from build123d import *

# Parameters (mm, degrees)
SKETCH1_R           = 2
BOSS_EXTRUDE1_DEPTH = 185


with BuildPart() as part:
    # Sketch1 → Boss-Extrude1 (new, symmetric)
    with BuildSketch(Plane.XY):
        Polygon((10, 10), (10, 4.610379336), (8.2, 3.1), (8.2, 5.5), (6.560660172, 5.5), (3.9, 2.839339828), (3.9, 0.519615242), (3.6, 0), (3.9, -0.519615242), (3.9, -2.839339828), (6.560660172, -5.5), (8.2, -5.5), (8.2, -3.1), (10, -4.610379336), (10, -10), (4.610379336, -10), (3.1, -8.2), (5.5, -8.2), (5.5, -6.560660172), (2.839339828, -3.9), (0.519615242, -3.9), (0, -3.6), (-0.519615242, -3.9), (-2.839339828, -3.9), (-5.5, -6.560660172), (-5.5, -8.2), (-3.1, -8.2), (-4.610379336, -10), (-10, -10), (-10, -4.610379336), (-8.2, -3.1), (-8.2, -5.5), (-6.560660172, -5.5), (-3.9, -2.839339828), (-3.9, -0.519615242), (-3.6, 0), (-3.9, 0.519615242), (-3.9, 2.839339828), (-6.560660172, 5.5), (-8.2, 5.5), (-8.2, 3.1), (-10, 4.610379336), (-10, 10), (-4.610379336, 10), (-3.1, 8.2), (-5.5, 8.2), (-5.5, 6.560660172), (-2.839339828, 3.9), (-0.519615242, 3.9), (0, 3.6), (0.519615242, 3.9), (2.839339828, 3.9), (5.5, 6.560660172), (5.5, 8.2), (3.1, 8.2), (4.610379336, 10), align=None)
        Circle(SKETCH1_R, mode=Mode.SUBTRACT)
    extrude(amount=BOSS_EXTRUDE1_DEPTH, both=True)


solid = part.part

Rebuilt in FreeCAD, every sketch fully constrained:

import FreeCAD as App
import Part
import Sketcher
Q = App.Units.Quantity

doc = App.newDocument("Part")
body = doc.addObject("PartDesign::Body", "Body")

sketch1 = body.newObject("Sketcher::SketchObject", "Sketch")
sketch1.AttachmentSupport = (doc.getObject("XY_Plane"), [""])
sketch1.MapMode = "FlatFace"
sketch1.addGeometry(Part.LineSegment(App.Vector(10, 4.6, 0), App.Vector(10, 10, 0)), False)
sketch1.addGeometry(Part.LineSegment(App.Vector(10, 10, 0), App.Vector(4.6, 10, 0)), False)
sketch1.addGeometry(Part.LineSegment(App.Vector(4.6, 10, 0), App.Vector(3.1, 8.2, 0)), False)
sketch1.addGeometry(Part.LineSegment(App.Vector(3.1, 8.2, 0), App.Vector(5.5, 8.2, 0)), False)
sketch1.addGeometry(Part.LineSegment(App.Vector(5.5, 8.2, 0), App.Vector(5.5, 6.6, 0)), False)
sketch1.addGeometry(Part.LineSegment(App.Vector(5.5, 6.6, 0), App.Vector(2.8, 3.9, 0)), False)
sketch1.addGeometry(Part.LineSegment(App.Vector(2.8, 3.9, 0), App.Vector(0.5, 3.9, 0)), False)
sketch1.addGeometry(Part.LineSegment(App.Vector(0.5, 3.9, 0), App.Vector(0, 3.6, 0)), False)
sketch1.addGeometry(Part.LineSegment(App.Vector(0, 3.6, 0), App.Vector(-0.5, 3.9, 0)), False)
sketch1.addGeometry(Part.LineSegment(App.Vector(-0.5, 3.9, 0), App.Vector(-2.8, 3.9, 0)), False)
sketch1.addGeometry(Part.LineSegment(App.Vector(-2.8, 3.9, 0), App.Vector(-5.5, 6.6, 0)), False)
sketch1.addGeometry(Part.LineSegment(App.Vector(-5.5, 6.6, 0), App.Vector(-5.5, 8.2, 0)), False)
sketch1.addGeometry(Part.LineSegment(App.Vector(-5.5, 8.2, 0), App.Vector(-3.1, 8.2, 0)), False)
sketch1.addGeometry(Part.LineSegment(App.Vector(-3.1, 8.2, 0), App.Vector(-4.6, 10, 0)), False)
sketch1.addGeometry(Part.LineSegment(App.Vector(-4.6, 10, 0), App.Vector(-10, 10, 0)), False)
sketch1.addGeometry(Part.LineSegment(App.Vector(-10, 10, 0), App.Vector(-10, 4.6, 0)), False)
sketch1.addGeometry(Part.LineSegment(App.Vector(-10, 4.6, 0), App.Vector(-8.2, 3.1, 0)), False)
sketch1.addGeometry(Part.LineSegment(App.Vector(-8.2, 3.1, 0), App.Vector(-8.2, 5.5, 0)), False)
sketch1.addGeometry(Part.LineSegment(App.Vector(-8.2, 5.5, 0), App.Vector(-6.6, 5.5, 0)), False)
sketch1.addGeometry(Part.LineSegment(App.Vector(-6.6, 5.5, 0), App.Vector(-3.9, 2.8, 0)), False)
sketch1.addGeometry(Part.LineSegment(App.Vector(-3.9, 2.8, 0), App.Vector(-3.9, 0.5, 0)), False)
sketch1.addGeometry(Part.LineSegment(App.Vector(-3.9, 0.5, 0), App.Vector(-3.6, 0, 0)), False)
sketch1.addGeometry(Part.LineSegment(App.Vector(-3.6, 0, 0), App.Vector(-3.9, -0.5, 0)), False)
sketch1.addGeometry(Part.LineSegment(App.Vector(-3.9, -0.5, 0), App.Vector(-3.9, -2.8, 0)), False)
sketch1.addGeometry(Part.LineSegment(App.Vector(-3.9, -2.8, 0), App.Vector(-6.6, -5.5, 0)), False)
sketch1.addGeometry(Part.LineSegment(App.Vector(-6.6, -5.5, 0), App.Vector(-8.2, -5.5, 0)), False)
sketch1.addGeometry(Part.LineSegment(App.Vector(-8.2, -5.5, 0), App.Vector(-8.2, -3.1, 0)), False)
sketch1.addGeometry(Part.LineSegment(App.Vector(-8.2, -3.1, 0), App.Vector(-10, -4.6, 0)), False)
sketch1.addGeometry(Part.LineSegment(App.Vector(-10, -4.6, 0), App.Vector(-10, -10, 0)), False)
sketch1.addGeometry(Part.LineSegment(App.Vector(-10, -10, 0), App.Vector(-4.6, -10, 0)), False)
sketch1.addGeometry(Part.LineSegment(App.Vector(-4.6, -10, 0), App.Vector(-3.1, -8.2, 0)), False)
sketch1.addGeometry(Part.LineSegment(App.Vector(-3.1, -8.2, 0), App.Vector(-5.5, -8.2, 0)), False)
sketch1.addGeometry(Part.LineSegment(App.Vector(-5.5, -8.2, 0), App.Vector(-5.5, -6.6, 0)), False)
sketch1.addGeometry(Part.LineSegment(App.Vector(-5.5, -6.6, 0), App.Vector(-2.8, -3.9, 0)), False)
sketch1.addGeometry(Part.LineSegment(App.Vector(-2.8, -3.9, 0), App.Vector(-0.5, -3.9, 0)), False)
sketch1.addGeometry(Part.LineSegment(App.Vector(-0.5, -3.9, 0), App.Vector(0, -3.6, 0)), False)
sketch1.addGeometry(Part.LineSegment(App.Vector(0, -3.6, 0), App.Vector(0.5, -3.9, 0)), False)
sketch1.addGeometry(Part.LineSegment(App.Vector(0.5, -3.9, 0), App.Vector(2.8, -3.9, 0)), False)
sketch1.addGeometry(Part.LineSegment(App.Vector(2.8, -3.9, 0), App.Vector(5.5, -6.6, 0)), False)
sketch1.addGeometry(Part.LineSegment(App.Vector(5.5, -6.6, 0), App.Vector(5.5, -8.2, 0)), False)
sketch1.addGeometry(Part.LineSegment(App.Vector(5.5, -8.2, 0), App.Vector(3.1, -8.2, 0)), False)
sketch1.addGeometry(Part.LineSegment(App.Vector(3.1, -8.2, 0), App.Vector(4.6, -10, 0)), False)
sketch1.addGeometry(Part.LineSegment(App.Vector(4.6, -10, 0), App.Vector(10, -10, 0)), False)
sketch1.addGeometry(Part.LineSegment(App.Vector(10, -10, 0), App.Vector(10, -4.6, 0)), False)
sketch1.addGeometry(Part.LineSegment(App.Vector(10, -4.6, 0), App.Vector(8.2, -3.1, 0)), False)
sketch1.addGeometry(Part.LineSegment(App.Vector(8.2, -3.1, 0), App.Vector(8.2, -5.5, 0)), False)
sketch1.addGeometry(Part.LineSegment(App.Vector(8.2, -5.5, 0), App.Vector(6.6, -5.5, 0)), False)
sketch1.addGeometry(Part.LineSegment(App.Vector(6.6, -5.5, 0), App.Vector(3.9, -2.8, 0)), False)
sketch1.addGeometry(Part.LineSegment(App.Vector(3.9, -2.8, 0), App.Vector(3.9, -0.5, 0)), False)
sketch1.addGeometry(Part.LineSegment(App.Vector(3.9, -0.5, 0), App.Vector(3.6, 0, 0)), False)
sketch1.addGeometry(Part.LineSegment(App.Vector(3.6, 0, 0), App.Vector(3.9, 0.5, 0)), False)
sketch1.addGeometry(Part.LineSegment(App.Vector(3.9, 0.5, 0), App.Vector(3.9, 2.8, 0)), False)
sketch1.addGeometry(Part.LineSegment(App.Vector(3.9, 2.8, 0), App.Vector(6.6, 5.5, 0)), False)
sketch1.addGeometry(Part.LineSegment(App.Vector(6.6, 5.5, 0), App.Vector(8.2, 5.5, 0)), False)
sketch1.addGeometry(Part.LineSegment(App.Vector(8.2, 5.5, 0), App.Vector(8.2, 3.1, 0)), False)
sketch1.addGeometry(Part.LineSegment(App.Vector(8.2, 3.1, 0), App.Vector(10, 4.6, 0)), False)
sketch1.addGeometry(Part.Circle(App.Vector(0, 0, 0), App.Vector(0, 0, 1), 2), False)
sketch1.addConstraint(Sketcher.Constraint("Coincident", 0, 2, 1, 1))
sketch1.addConstraint(Sketcher.Constraint("Coincident", 1, 2, 2, 1))
sketch1.addConstraint(Sketcher.Constraint("Coincident", 2, 2, 3, 1))
sketch1.addConstraint(Sketcher.Constraint("Coincident", 3, 2, 4, 1))
sketch1.addConstraint(Sketcher.Constraint("Coincident", 4, 2, 5, 1))
sketch1.addConstraint(Sketcher.Constraint("Coincident", 5, 2, 6, 1))
sketch1.addConstraint(Sketcher.Constraint("Coincident", 6, 2, 7, 1))
sketch1.addConstraint(Sketcher.Constraint("Coincident", 7, 2, 8, 1))
sketch1.addConstraint(Sketcher.Constraint("Coincident", 8, 2, 9, 1))
sketch1.addConstraint(Sketcher.Constraint("Coincident", 9, 2, 10, 1))
sketch1.addConstraint(Sketcher.Constraint("Coincident", 10, 2, 11, 1))
sketch1.addConstraint(Sketcher.Constraint("Coincident", 11, 2, 12, 1))
sketch1.addConstraint(Sketcher.Constraint("Coincident", 12, 2, 13, 1))
sketch1.addConstraint(Sketcher.Constraint("Coincident", 13, 2, 14, 1))
sketch1.addConstraint(Sketcher.Constraint("Coincident", 14, 2, 15, 1))
sketch1.addConstraint(Sketcher.Constraint("Coincident", 15, 2, 16, 1))
sketch1.addConstraint(Sketcher.Constraint("Coincident", 16, 2, 17, 1))
sketch1.addConstraint(Sketcher.Constraint("Coincident", 17, 2, 18, 1))
sketch1.addConstraint(Sketcher.Constraint("Coincident", 18, 2, 19, 1))
sketch1.addConstraint(Sketcher.Constraint("Coincident", 19, 2, 20, 1))
sketch1.addConstraint(Sketcher.Constraint("Coincident", 20, 2, 21, 1))
sketch1.addConstraint(Sketcher.Constraint("Coincident", 21, 2, 22, 1))
sketch1.addConstraint(Sketcher.Constraint("Coincident", 22, 2, 23, 1))
sketch1.addConstraint(Sketcher.Constraint("Coincident", 23, 2, 24, 1))
sketch1.addConstraint(Sketcher.Constraint("Coincident", 24, 2, 25, 1))
sketch1.addConstraint(Sketcher.Constraint("Coincident", 25, 2, 26, 1))
sketch1.addConstraint(Sketcher.Constraint("Coincident", 26, 2, 27, 1))
sketch1.addConstraint(Sketcher.Constraint("Coincident", 27, 2, 28, 1))
sketch1.addConstraint(Sketcher.Constraint("Coincident", 28, 2, 29, 1))
sketch1.addConstraint(Sketcher.Constraint("Coincident", 29, 2, 30, 1))
sketch1.addConstraint(Sketcher.Constraint("Coincident", 30, 2, 31, 1))
sketch1.addConstraint(Sketcher.Constraint("Coincident", 31, 2, 32, 1))
sketch1.addConstraint(Sketcher.Constraint("Coincident", 32, 2, 33, 1))
sketch1.addConstraint(Sketcher.Constraint("Coincident", 33, 2, 34, 1))
sketch1.addConstraint(Sketcher.Constraint("Coincident", 34, 2, 35, 1))
sketch1.addConstraint(Sketcher.Constraint("Coincident", 35, 2, 36, 1))
sketch1.addConstraint(Sketcher.Constraint("Coincident", 36, 2, 37, 1))
sketch1.addConstraint(Sketcher.Constraint("Coincident", 37, 2, 38, 1))
sketch1.addConstraint(Sketcher.Constraint("Coincident", 38, 2, 39, 1))
sketch1.addConstraint(Sketcher.Constraint("Coincident", 39, 2, 40, 1))
sketch1.addConstraint(Sketcher.Constraint("Coincident", 40, 2, 41, 1))
sketch1.addConstraint(Sketcher.Constraint("Coincident", 41, 2, 42, 1))
sketch1.addConstraint(Sketcher.Constraint("Coincident", 42, 2, 43, 1))
sketch1.addConstraint(Sketcher.Constraint("Coincident", 43, 2, 44, 1))
sketch1.addConstraint(Sketcher.Constraint("Coincident", 44, 2, 45, 1))
sketch1.addConstraint(Sketcher.Constraint("Coincident", 45, 2, 46, 1))
sketch1.addConstraint(Sketcher.Constraint("Coincident", 46, 2, 47, 1))
sketch1.addConstraint(Sketcher.Constraint("Coincident", 47, 2, 48, 1))
sketch1.addConstraint(Sketcher.Constraint("Coincident", 48, 2, 49, 1))
sketch1.addConstraint(Sketcher.Constraint("Coincident", 49, 2, 50, 1))
sketch1.addConstraint(Sketcher.Constraint("Coincident", 50, 2, 51, 1))
sketch1.addConstraint(Sketcher.Constraint("Coincident", 51, 2, 52, 1))
sketch1.addConstraint(Sketcher.Constraint("Coincident", 52, 2, 53, 1))
sketch1.addConstraint(Sketcher.Constraint("Coincident", 53, 2, 54, 1))
sketch1.addConstraint(Sketcher.Constraint("Coincident", 54, 2, 55, 1))
sketch1.addConstraint(Sketcher.Constraint("Coincident", 55, 2, 0, 1))
sketch1.addConstraint(Sketcher.Constraint("Vertical", 0))
sketch1.addConstraint(Sketcher.Constraint("Horizontal", 1))
sketch1.addConstraint(Sketcher.Constraint("Horizontal", 3))
sketch1.addConstraint(Sketcher.Constraint("Vertical", 4))
sketch1.addConstraint(Sketcher.Constraint("Horizontal", 6))
sketch1.addConstraint(Sketcher.Constraint("Horizontal", 9))
sketch1.addConstraint(Sketcher.Constraint("Vertical", 11))
sketch1.addConstraint(Sketcher.Constraint("Horizontal", 12))
sketch1.addConstraint(Sketcher.Constraint("Horizontal", 14))
sketch1.addConstraint(Sketcher.Constraint("Vertical", 15))
sketch1.addConstraint(Sketcher.Constraint("Vertical", 17))
sketch1.addConstraint(Sketcher.Constraint("Horizontal", 18))
sketch1.addConstraint(Sketcher.Constraint("Vertical", 20))
sketch1.addConstraint(Sketcher.Constraint("Vertical", 23))
sketch1.addConstraint(Sketcher.Constraint("Horizontal", 25))
sketch1.addConstraint(Sketcher.Constraint("Vertical", 26))
sketch1.addConstraint(Sketcher.Constraint("Vertical", 28))
sketch1.addConstraint(Sketcher.Constraint("Horizontal", 29))
sketch1.addConstraint(Sketcher.Constraint("Horizontal", 31))
sketch1.addConstraint(Sketcher.Constraint("Vertical", 32))
sketch1.addConstraint(Sketcher.Constraint("Horizontal", 34))
sketch1.addConstraint(Sketcher.Constraint("Horizontal", 37))
sketch1.addConstraint(Sketcher.Constraint("Vertical", 39))
sketch1.addConstraint(Sketcher.Constraint("Horizontal", 40))
sketch1.addConstraint(Sketcher.Constraint("Horizontal", 42))
sketch1.addConstraint(Sketcher.Constraint("Vertical", 43))
sketch1.addConstraint(Sketcher.Constraint("Vertical", 45))
sketch1.addConstraint(Sketcher.Constraint("Horizontal", 46))
sketch1.addConstraint(Sketcher.Constraint("Vertical", 48))
sketch1.addConstraint(Sketcher.Constraint("Vertical", 51))
sketch1.addConstraint(Sketcher.Constraint("Horizontal", 53))
sketch1.addConstraint(Sketcher.Constraint("Vertical", 54))
sketch1.addConstraint(Sketcher.Constraint("Coincident", 56, 3, -1, 1))
sketch1.addConstraint(Sketcher.Constraint("Symmetric", 0, 2, 28, 2, -1, 1))
sketch1.addConstraint(Sketcher.Constraint("Symmetric", 2, 2, 30, 2, -1, 1))
sketch1.addConstraint(Sketcher.Constraint("Symmetric", 4, 2, 32, 2, -1, 1))
sketch1.addConstraint(Sketcher.Constraint("Symmetric", 5, 2, 33, 2, -1, 1))
sketch1.addConstraint(Sketcher.Constraint("Symmetric", 7, 2, 35, 2, -1, 1))
sketch1.addConstraint(Sketcher.Constraint("Symmetric", 8, 2, 36, 2, -1, 1))
sketch1.addConstraint(Sketcher.Constraint("Symmetric", 10, 2, 38, 2, -1, 1))
sketch1.addConstraint(Sketcher.Constraint("Symmetric", 12, 2, 40, 2, -1, 1))
sketch1.addConstraint(Sketcher.Constraint("Symmetric", 13, 2, 41, 2, -1, 1))
sketch1.addConstraint(Sketcher.Constraint("Symmetric", 15, 2, 43, 2, -1, 1))
sketch1.addConstraint(Sketcher.Constraint("Symmetric", 16, 2, 44, 2, -1, 1))
sketch1.addConstraint(Sketcher.Constraint("Symmetric", 18, 2, 46, 2, -1, 1))
sketch1.addConstraint(Sketcher.Constraint("Symmetric", 19, 2, 47, 2, -1, 1))
sketch1.addConstraint(Sketcher.Constraint("Symmetric", 21, 2, 49, 2, -1, 1))
sketch1.addConstraint(Sketcher.Constraint("Symmetric", 22, 2, 50, 2, -1, 1))
sketch1.addConstraint(Sketcher.Constraint("Symmetric", 24, 2, 52, 2, -1, 1))
sketch1.addConstraint(Sketcher.Constraint("Symmetric", 26, 2, 54, 2, -1, 1))
sketch1.addConstraint(Sketcher.Constraint("Symmetric", 6, 2, 8, 2, -2))
sketch1.addConstraint(Sketcher.Constraint("Symmetric", 4, 2, 10, 2, -2))
sketch1.addConstraint(Sketcher.Constraint("Symmetric", 2, 2, 12, 2, -2))
sketch1.addConstraint(Sketcher.Constraint("Symmetric", 1, 2, 13, 2, -2))
sketch1.addConstraint(Sketcher.Constraint("Symmetric", 27, 2, 43, 2, -2))
sketch1.addConstraint(Sketcher.Constraint("Symmetric", 26, 2, 44, 2, -2))
sketch1.addConstraint(Sketcher.Constraint("Symmetric", 24, 2, 46, 2, -2))
sketch1.addConstraint(Sketcher.Constraint("Symmetric", 23, 2, 47, 2, -2))
sketch1.addConstraint(Sketcher.Constraint("PointOnObject", 7, 2, -2))
sketch1.addConstraint(Sketcher.Constraint("PointOnObject", 21, 2, -1))
sketch1.addConstraint(Sketcher.Constraint("Perpendicular", 5, 10))
sketch1.addConstraint(Sketcher.Constraint("Perpendicular", 2, 16))
sketch1.addConstraint(Sketcher.Constraint("Parallel", 10, 19))
sketch1.addConstraint(Sketcher.Constraint("Perpendicular", 7, 21))
sketch1.addConstraint(Sketcher.Constraint("Perpendicular", 8, 22))
sketch1.addConstraint(Sketcher.Constraint("Perpendicular", 19, 24))
sketch1.addConstraint(Sketcher.Constraint("Perpendicular", 16, 30))
sketch1.addConstraint(Sketcher.Constraint("Perpendicular", 21, 35))
sketch1.addConstraint(Sketcher.Constraint("Perpendicular", 33, 38))
sketch1.addConstraint(Sketcher.Constraint("Perpendicular", 35, 49))
sketch1.addConstraint(Sketcher.Constraint("Perpendicular", 47, 52))
sketch1.addConstraint(Sketcher.Constraint("Perpendicular", 41, 55))
sketch1.addConstraint(Sketcher.Constraint("Equal", 42, 0))
sketch1.addConstraint(Sketcher.Constraint("Equal", 53, 4))
sketch1.addConstraint(Sketcher.Constraint("Equal", 40, 17))
sketch1.addConstraint(Sketcher.Constraint("Equal", 37, 20))
sketch1.addConstraint(Sketcher.Constraint("Equal", 13, 16))
sketch1.addConstraint(Sketcher.Constraint("Equal", 10, 19))
sketch1.addConstraint(Sketcher.Constraint("Equal", 8, 21))
sketch1.addConstraint(Sketcher.Constraint("Diameter", 56, 4.0))
sketch1.addConstraint(Sketcher.Constraint("Angle", 2, Q("-130 deg")))
sketch1.addConstraint(Sketcher.Constraint("Angle", 7, Q("-150 deg")))
sketch1.addConstraint(Sketcher.Constraint("DistanceX", 3, 1, 3, 2, 2.4))
sketch1.addConstraint(Sketcher.Constraint("DistanceX", -1, 1, 0, 2, 10.0))
sketch1.addConstraint(Sketcher.Constraint("Distance", 7, 0.6))
sketch1.addConstraint(Sketcher.Constraint("DistanceX", -1, 1, 2, 2, 3.1))
sketch1.addConstraint(Sketcher.Constraint("DistanceY", -1, 1, 2, 2, 8.2))
sketch1.addConstraint(Sketcher.Constraint("DistanceY", -1, 1, 5, 2, 3.9))
sketch1.addConstraint(Sketcher.Constraint("DistanceX", 18, 1, 18, 2, 1.63934))
pad1 = body.newObject("PartDesign::Pad", "Pad")
pad1.Profile = sketch1
pad1.Length = 370
pad1.Midplane = True

doc.recompute()
